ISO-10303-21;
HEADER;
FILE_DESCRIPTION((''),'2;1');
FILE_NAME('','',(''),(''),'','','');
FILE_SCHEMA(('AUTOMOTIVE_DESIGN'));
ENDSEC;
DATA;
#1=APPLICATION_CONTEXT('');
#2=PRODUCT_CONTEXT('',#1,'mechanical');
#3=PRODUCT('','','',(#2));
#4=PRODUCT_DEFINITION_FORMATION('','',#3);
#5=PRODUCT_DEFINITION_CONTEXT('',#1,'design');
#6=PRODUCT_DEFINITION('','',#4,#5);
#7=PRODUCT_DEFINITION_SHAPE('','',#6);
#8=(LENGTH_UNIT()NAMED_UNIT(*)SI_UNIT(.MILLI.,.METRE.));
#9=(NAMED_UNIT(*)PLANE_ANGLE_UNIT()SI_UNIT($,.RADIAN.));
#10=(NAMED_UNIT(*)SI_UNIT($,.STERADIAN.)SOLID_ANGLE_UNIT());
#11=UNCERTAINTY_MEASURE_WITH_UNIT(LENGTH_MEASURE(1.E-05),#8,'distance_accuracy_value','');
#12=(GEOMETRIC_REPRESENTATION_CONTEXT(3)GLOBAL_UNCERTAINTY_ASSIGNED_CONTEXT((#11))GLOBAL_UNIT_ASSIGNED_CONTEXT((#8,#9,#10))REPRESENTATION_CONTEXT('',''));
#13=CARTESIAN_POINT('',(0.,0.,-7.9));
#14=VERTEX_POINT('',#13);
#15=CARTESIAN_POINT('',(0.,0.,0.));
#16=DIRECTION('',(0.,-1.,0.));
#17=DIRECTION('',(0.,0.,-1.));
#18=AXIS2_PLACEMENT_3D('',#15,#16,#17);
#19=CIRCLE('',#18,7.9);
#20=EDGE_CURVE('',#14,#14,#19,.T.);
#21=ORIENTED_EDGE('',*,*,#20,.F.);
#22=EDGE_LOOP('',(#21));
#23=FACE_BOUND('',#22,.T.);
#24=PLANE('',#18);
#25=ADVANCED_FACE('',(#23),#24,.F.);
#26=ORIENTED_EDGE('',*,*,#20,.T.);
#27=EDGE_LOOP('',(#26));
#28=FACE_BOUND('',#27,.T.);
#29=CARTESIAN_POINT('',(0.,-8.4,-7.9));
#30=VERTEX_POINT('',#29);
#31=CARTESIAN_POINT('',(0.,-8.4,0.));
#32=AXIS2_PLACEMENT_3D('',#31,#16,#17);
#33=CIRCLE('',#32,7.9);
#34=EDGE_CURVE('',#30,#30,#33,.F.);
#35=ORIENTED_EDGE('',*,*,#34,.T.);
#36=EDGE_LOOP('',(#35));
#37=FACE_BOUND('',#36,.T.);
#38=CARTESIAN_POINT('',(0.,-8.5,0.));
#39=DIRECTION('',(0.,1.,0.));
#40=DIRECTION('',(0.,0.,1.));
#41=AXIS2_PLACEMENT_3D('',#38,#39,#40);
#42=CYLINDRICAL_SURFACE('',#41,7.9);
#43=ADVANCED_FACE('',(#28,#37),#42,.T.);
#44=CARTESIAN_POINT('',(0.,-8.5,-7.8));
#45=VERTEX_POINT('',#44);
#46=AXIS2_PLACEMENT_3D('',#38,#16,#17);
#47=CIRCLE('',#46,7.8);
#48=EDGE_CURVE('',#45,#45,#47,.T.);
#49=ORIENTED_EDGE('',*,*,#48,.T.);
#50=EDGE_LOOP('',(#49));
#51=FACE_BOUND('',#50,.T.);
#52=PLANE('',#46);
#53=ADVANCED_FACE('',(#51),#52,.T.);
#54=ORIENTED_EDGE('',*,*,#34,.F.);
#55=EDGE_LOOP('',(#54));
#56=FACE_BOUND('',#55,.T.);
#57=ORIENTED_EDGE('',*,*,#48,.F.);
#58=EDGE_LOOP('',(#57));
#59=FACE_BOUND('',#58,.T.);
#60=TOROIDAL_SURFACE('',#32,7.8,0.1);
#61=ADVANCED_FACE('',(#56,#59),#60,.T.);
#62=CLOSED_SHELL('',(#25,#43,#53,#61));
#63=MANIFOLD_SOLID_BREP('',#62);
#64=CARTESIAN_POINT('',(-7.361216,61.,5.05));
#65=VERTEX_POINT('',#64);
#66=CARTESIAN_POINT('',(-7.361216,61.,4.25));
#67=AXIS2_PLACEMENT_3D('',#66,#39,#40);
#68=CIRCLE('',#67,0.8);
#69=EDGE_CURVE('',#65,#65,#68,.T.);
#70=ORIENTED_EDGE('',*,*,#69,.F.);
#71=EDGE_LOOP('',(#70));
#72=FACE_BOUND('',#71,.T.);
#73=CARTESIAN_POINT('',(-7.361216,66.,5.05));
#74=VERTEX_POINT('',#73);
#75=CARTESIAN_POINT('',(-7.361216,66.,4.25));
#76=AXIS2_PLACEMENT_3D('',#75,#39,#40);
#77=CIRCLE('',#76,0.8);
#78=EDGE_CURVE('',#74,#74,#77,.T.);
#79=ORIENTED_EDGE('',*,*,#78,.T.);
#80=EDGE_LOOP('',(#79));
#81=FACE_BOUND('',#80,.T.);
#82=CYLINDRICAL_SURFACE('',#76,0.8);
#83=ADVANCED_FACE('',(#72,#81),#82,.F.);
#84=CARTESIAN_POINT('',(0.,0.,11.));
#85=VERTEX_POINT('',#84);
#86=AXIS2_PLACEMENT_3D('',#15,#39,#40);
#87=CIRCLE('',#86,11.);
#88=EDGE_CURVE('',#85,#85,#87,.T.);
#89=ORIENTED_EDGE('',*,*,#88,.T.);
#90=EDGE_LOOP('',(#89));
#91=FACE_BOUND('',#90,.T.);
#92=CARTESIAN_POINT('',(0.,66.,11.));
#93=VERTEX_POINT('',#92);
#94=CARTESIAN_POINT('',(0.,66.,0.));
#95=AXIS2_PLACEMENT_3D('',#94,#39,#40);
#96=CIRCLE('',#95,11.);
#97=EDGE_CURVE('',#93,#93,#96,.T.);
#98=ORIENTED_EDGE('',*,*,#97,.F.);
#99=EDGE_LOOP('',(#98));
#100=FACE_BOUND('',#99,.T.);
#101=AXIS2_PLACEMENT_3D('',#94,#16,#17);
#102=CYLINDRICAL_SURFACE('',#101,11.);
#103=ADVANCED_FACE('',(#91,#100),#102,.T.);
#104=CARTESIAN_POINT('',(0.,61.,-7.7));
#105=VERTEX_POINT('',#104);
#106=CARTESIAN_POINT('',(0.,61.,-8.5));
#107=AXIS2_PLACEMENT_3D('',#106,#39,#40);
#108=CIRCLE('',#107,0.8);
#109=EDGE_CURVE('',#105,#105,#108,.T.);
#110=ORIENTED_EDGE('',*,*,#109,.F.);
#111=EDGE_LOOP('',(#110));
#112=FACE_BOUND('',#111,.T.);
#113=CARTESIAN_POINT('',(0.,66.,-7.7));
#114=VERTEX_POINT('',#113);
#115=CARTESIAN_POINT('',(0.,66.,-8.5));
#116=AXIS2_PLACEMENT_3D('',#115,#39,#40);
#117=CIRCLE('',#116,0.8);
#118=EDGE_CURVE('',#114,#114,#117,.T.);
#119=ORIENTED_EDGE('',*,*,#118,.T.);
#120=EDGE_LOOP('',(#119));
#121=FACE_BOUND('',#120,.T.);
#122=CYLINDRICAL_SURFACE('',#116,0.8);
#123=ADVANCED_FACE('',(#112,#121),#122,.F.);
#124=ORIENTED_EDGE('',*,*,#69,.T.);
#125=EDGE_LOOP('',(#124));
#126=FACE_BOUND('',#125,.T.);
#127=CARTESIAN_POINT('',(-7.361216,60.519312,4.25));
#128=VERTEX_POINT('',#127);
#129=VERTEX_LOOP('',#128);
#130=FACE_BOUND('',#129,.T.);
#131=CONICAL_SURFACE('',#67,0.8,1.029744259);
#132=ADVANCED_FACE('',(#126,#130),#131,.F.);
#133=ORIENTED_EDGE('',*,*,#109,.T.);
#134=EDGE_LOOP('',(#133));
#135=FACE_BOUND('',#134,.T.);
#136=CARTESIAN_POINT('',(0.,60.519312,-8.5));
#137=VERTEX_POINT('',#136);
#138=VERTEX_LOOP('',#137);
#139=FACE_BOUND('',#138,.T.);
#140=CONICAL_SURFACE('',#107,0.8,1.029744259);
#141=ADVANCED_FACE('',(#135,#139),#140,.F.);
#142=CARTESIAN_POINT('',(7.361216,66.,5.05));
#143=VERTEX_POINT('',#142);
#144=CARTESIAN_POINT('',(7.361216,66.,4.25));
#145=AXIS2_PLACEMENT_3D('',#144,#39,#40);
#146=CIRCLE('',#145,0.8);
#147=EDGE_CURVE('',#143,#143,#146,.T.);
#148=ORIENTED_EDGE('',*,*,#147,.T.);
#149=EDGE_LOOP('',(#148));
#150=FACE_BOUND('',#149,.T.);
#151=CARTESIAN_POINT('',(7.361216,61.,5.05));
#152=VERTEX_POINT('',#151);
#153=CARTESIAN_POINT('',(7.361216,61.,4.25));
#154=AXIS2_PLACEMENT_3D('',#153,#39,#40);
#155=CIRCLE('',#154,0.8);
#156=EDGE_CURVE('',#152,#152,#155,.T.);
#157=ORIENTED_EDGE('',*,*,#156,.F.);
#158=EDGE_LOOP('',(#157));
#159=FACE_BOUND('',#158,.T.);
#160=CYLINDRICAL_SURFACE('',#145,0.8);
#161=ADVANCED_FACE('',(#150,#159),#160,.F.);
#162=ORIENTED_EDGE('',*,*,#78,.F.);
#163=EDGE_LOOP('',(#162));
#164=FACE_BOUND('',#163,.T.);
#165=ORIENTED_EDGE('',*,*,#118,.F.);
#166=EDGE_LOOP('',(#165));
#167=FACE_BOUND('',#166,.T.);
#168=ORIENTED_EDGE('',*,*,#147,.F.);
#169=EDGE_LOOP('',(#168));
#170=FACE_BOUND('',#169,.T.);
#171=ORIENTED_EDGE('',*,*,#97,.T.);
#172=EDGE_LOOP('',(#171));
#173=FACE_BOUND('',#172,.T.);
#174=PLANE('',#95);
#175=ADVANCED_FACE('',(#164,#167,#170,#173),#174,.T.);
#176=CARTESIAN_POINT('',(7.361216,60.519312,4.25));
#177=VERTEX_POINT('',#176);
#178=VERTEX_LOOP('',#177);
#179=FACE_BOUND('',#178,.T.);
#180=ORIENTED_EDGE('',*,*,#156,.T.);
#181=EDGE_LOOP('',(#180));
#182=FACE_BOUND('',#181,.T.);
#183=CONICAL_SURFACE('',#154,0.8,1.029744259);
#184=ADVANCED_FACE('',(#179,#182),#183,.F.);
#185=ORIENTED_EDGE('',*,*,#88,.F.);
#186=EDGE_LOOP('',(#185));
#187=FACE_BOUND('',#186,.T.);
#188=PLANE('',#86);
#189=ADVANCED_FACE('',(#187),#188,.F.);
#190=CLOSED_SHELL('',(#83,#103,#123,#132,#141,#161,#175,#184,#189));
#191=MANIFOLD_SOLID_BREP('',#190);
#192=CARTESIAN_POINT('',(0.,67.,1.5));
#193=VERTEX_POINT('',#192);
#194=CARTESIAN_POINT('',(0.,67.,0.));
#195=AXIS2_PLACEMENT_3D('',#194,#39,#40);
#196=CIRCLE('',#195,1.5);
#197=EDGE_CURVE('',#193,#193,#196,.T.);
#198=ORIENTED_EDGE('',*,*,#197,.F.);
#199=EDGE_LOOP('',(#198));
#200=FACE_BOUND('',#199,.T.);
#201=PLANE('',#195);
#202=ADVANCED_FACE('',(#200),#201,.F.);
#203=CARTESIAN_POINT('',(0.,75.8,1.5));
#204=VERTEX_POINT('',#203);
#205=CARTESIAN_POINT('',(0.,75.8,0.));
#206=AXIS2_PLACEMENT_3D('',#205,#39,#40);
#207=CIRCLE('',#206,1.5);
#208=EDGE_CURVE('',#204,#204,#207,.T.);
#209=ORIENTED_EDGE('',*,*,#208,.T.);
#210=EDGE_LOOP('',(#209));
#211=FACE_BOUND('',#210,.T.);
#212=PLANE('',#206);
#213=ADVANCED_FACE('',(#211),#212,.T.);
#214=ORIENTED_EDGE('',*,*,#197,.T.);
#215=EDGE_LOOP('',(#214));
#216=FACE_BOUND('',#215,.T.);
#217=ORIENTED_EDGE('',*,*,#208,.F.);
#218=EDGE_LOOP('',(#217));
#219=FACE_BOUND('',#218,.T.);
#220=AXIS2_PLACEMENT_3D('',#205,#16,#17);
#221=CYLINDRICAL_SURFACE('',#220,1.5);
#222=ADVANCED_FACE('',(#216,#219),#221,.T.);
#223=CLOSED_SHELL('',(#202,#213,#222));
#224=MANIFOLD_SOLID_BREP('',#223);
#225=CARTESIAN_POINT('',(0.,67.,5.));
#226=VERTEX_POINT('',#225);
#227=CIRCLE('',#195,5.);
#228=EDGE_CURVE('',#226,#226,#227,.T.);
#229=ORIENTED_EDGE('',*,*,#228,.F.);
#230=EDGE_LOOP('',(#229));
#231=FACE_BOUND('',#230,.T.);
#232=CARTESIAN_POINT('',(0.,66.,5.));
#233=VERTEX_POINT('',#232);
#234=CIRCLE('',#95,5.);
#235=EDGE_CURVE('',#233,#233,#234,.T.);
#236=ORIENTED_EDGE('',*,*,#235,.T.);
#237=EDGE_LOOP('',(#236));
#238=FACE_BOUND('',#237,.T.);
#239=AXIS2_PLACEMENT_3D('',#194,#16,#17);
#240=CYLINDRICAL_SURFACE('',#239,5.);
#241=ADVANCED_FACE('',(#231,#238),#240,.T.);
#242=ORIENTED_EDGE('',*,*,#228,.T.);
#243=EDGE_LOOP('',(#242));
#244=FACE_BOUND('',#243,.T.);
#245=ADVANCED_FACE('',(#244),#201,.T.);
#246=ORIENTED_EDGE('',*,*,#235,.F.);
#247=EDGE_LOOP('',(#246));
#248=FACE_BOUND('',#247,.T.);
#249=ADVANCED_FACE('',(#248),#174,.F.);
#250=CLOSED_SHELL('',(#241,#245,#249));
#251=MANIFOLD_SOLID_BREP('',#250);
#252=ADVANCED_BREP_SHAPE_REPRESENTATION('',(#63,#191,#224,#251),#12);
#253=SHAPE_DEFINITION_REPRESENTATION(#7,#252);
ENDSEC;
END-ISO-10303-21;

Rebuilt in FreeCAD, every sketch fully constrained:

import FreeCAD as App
import Part
import Sketcher
from FreeCAD import Vector
Q = App.Units.Quantity


def edges_at(feature, points):
    """Names of the edges that pass closest to the given points."""
    edges = feature.Shape.Edges
    near = lambda p: min(range(len(edges)), key=lambda i: edges[i].distToShape(Part.Vertex(*p))[0])
    return sorted({f"Edge{near(p) + 1}" for p in points})


def add_polygon(sketch, points):
    """Adds a closed chain of lines whose ends are joined by coincident constraints."""
    first, n = sketch.GeometryCount, len(points)
    for a, b in zip(points, points[1:] + points[:1]):
        sketch.addGeometry(Part.LineSegment(App.Vector(*a, 0), App.Vector(*b, 0)), False)
    for i in range(n):
        sketch.addConstraint(Sketcher.Constraint("Coincident", first + i, 2, first + (i + 1) % n, 1))

doc = App.newDocument("Part")
params = doc.addObject("Spreadsheet::Sheet", "Params")
for row, (alias, value) in enumerate([
    ("sketch1_diameter", "22 mm"),
    ("pad1_length", "66 mm"),
    ("sketch2_width", "5 mm"),
    ("sketch2_height", "0.8 mm"),
    ("groove_angle", "360 deg"),
    ("sketch3_diameter", "10 mm"),
    ("pad2_length", "1 mm"),
    ("sketch4_diameter", "3 mm"),
    ("pad3_length", "8.8 mm"),
    ("sketch5_diameter", "15.8 mm"),
    ("pad4_length", "8.5 mm"),
    ("fillet_radius", "0.1 mm"),
], start=1):
    params.set(f"A{row}", alias)
    params.set(f"B{row}", "=" + value)
    params.setAlias(f"B{row}", alias)

body = doc.addObject("PartDesign::Body", "Body")

# Sketch on XZ plane
sketch1 = body.newObject("Sketcher::SketchObject", "Sketch")
sketch1.AttachmentSupport = (doc.getObject("XZ_Plane"), [""])
sketch1.MapMode = "FlatFace"
sketch1.addGeometry(Part.Circle(Vector(0, 0, 0), Vector(0, 0, 1), 11), False)
sketch1.addConstraint([
    Sketcher.Constraint("Coincident", 0, 3, -1, 1),
    Sketcher.Constraint("Diameter", 0, Q("22 mm")),
])
sketch1.setExpression("Constraints[1]", "Params.sketch1_diameter")
pad1 = body.newObject("PartDesign::Pad", "Pad")
pad1.Profile = sketch1
pad1.setExpression("Length", "Params.pad1_length")
pad1.Reversed = True

# Sketch on YZ plane
sketch2 = body.newObject("Sketcher::SketchObject", "Sketch001")
sketch2.AttachmentSupport = (doc.getObject("YZ_Plane"), [""])
sketch2.MapMode = "FlatFace"
add_polygon(sketch2, [(60.5, -8.5), (66, -8.5), (66, -7.7), (61, -7.7)])  # lines 0-3
sketch2.addGeometry(Part.LineSegment(Vector(66, -8.5, 0), Vector(60.5, -8.5, 0)), True)  # axis
sketch2.addConstraint([
    Sketcher.Constraint("Horizontal", 0),
    Sketcher.Constraint("Vertical", 1),
    Sketcher.Constraint("Horizontal", 2),
    Sketcher.Constraint("Horizontal", 4),
    Sketcher.Constraint("Coincident", 4, 1, 0, 2),
    Sketcher.Constraint("Equal", 0, 4),
    Sketcher.Constraint("DistanceX", 2, 2, 2, 1, Q("5 mm")),
    Sketcher.Constraint("Angle", 3, Q("-121 deg")),
    Sketcher.Constraint("DistanceY", 1, 1, 1, 2, Q("0.8 mm")),
    Sketcher.Constraint("DistanceX", -1, 1, 0, 2, Q("66 mm")),
    Sketcher.Constraint("DistanceY", 0, 2, -1, 1, Q("8.5 mm")),
])
sketch2.setExpression("Constraints[10]", "Params.sketch2_width")
sketch2.setExpression("Constraints[12]", "Params.sketch2_height")
groove = body.newObject("PartDesign::Groove", "Groove")
groove.Profile = sketch2
groove.ReferenceAxis = (sketch2, ["Axis0"])
groove.setExpression("Angle", "Params.groove_angle")
doc.recompute()

polarpattern = body.newObject("PartDesign::PolarPattern", "PolarPattern")
polarpattern.Originals = [groove]
polarpattern.Axis = (doc.getObject("Y_Axis"), [""])
polarpattern.Angle = 360
polarpattern.Occurrences = 3
body.Tip = polarpattern
body2 = doc.addObject("PartDesign::Body", "Body001")

# Sketch on XZ plane
sketch3 = body2.newObject("Sketcher::SketchObject", "Sketch002")
sketch3.AttachmentSupport = (doc.getObject("XZ_Plane001"), [""])
sketch3.MapMode = "FlatFace"
sketch3.AttachmentOffset = App.Placement(Vector(0, 0, -66), App.Rotation())
sketch3.addGeometry(Part.Circle(Vector(0, 0, 0), Vector(0, 0, 1), 5), False)
sketch3.addConstraint([
    Sketcher.Constraint("Coincident", 0, 3, -1, 1),
    Sketcher.Constraint("Diameter", 0, Q("10 mm")),
])
sketch3.setExpression("Constraints[1]", "Params.sketch3_diameter")
pad2 = body2.newObject("PartDesign::Pad", "Pad001")
pad2.Profile = sketch3
pad2.setExpression("Length", "Params.pad2_length")
pad2.Reversed = True
body3 = doc.addObject("PartDesign::Body", "Body002")

# Sketch on XZ plane
sketch4 = body3.newObject("Sketcher::SketchObject", "Sketch003")
sketch4.AttachmentSupport = (doc.getObject("XZ_Plane002"), [""])
sketch4.MapMode = "FlatFace"
sketch4.AttachmentOffset = App.Placement(Vector(0, 0, -67), App.Rotation())
sketch4.addGeometry(Part.Circle(Vector(0, 0, 0), Vector(0, 0, 1), 1.5), False)
sketch4.addConstraint([
    Sketcher.Constraint("Coincident", 0, 3, -1, 1),
    Sketcher.Constraint("Diameter", 0, Q("3 mm")),
])
sketch4.setExpression("Constraints[1]", "Params.sketch4_diameter")
pad3 = body3.newObject("PartDesign::Pad", "Pad002")
pad3.Profile = sketch4
pad3.setExpression("Length", "Params.pad3_length")
pad3.Reversed = True
body4 = doc.addObject("PartDesign::Body", "Body003")

# Sketch on XZ plane
sketch5 = body4.newObject("Sketcher::SketchObject", "Sketch004")
sketch5.AttachmentSupport = (doc.getObject("XZ_Plane003"), [""])
sketch5.MapMode = "FlatFace"
sketch5.addGeometry(Part.Circle(Vector(0, 0, 0), Vector(0, 0, 1), 8), False)
sketch5.addConstraint([
    Sketcher.Constraint("Coincident", 0, 3, -1, 1),
    Sketcher.Constraint("Diameter", 0, Q("15.8 mm")),
])
sketch5.setExpression("Constraints[1]", "Params.sketch5_diameter")
pad4 = body4.newObject("PartDesign::Pad", "Pad003")
pad4.Profile = sketch5
pad4.setExpression("Length", "Params.pad4_length")
doc.recompute()

fillet = body4.newObject("PartDesign::Fillet", "Fillet")
fillet.Base = (pad4, edges_at(pad4, [(0, -8.5, 7.9)]))
fillet.setExpression("Radius", "Params.fillet_radius")

doc.recompute()
